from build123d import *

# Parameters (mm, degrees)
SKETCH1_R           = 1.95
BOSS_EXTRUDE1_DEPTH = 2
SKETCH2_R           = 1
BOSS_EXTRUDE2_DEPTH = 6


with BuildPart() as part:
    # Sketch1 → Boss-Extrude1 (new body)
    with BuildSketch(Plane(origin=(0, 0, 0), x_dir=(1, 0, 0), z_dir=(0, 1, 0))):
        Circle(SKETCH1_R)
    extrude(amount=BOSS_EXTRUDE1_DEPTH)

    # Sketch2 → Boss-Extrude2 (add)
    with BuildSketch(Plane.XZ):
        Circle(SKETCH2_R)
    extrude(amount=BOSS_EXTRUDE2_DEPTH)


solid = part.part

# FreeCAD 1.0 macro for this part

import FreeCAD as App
import Part
import Sketcher
from FreeCAD import Vector
Q = App.Units.Quantity

doc = App.newDocument("Part")
body = doc.addObject("PartDesign::Body", "Body")

# Sketch on XZ plane
sketch1 = body.newObject("Sketcher::SketchObject", "Sketch")
sketch1.AttachmentSupport = (doc.getObject("XZ_Plane"), [""])
sketch1.MapMode = "FlatFace"
sketch1.addGeometry(Part.Circle(Vector(0, 0, 0), Vector(0, 0, 1), 1.95), False)
sketch1.addConstraint([
    Sketcher.Constraint("Coincident", 0, 3, -1, 1),
    Sketcher.Constraint("Diameter", 0, Q("3.9 mm")),
])
pad1 = body.newObject("PartDesign::Pad", "Pad")
pad1.Profile = sketch1
pad1.Length = 2
pad1.Reversed = True

# Sketch on XZ plane
sketch2 = body.newObject("Sketcher::SketchObject", "Sketch001")
sketch2.AttachmentSupport = (doc.getObject("XZ_Plane"), [""])
sketch2.MapMode = "FlatFace"
sketch2.addGeometry(Part.Circle(Vector(0, 0, 0), Vector(0, 0, 1), 1), False)
sketch2.addConstraint([
    Sketcher.Constraint("Coincident", 0, 3, -1, 1),
    Sketcher.Constraint("Diameter", 0, Q("2 mm")),
])
pad2 = body.newObject("PartDesign::Pad", "Pad001")
pad2.Profile = sketch2
pad2.Length = 6

doc.recompute()
